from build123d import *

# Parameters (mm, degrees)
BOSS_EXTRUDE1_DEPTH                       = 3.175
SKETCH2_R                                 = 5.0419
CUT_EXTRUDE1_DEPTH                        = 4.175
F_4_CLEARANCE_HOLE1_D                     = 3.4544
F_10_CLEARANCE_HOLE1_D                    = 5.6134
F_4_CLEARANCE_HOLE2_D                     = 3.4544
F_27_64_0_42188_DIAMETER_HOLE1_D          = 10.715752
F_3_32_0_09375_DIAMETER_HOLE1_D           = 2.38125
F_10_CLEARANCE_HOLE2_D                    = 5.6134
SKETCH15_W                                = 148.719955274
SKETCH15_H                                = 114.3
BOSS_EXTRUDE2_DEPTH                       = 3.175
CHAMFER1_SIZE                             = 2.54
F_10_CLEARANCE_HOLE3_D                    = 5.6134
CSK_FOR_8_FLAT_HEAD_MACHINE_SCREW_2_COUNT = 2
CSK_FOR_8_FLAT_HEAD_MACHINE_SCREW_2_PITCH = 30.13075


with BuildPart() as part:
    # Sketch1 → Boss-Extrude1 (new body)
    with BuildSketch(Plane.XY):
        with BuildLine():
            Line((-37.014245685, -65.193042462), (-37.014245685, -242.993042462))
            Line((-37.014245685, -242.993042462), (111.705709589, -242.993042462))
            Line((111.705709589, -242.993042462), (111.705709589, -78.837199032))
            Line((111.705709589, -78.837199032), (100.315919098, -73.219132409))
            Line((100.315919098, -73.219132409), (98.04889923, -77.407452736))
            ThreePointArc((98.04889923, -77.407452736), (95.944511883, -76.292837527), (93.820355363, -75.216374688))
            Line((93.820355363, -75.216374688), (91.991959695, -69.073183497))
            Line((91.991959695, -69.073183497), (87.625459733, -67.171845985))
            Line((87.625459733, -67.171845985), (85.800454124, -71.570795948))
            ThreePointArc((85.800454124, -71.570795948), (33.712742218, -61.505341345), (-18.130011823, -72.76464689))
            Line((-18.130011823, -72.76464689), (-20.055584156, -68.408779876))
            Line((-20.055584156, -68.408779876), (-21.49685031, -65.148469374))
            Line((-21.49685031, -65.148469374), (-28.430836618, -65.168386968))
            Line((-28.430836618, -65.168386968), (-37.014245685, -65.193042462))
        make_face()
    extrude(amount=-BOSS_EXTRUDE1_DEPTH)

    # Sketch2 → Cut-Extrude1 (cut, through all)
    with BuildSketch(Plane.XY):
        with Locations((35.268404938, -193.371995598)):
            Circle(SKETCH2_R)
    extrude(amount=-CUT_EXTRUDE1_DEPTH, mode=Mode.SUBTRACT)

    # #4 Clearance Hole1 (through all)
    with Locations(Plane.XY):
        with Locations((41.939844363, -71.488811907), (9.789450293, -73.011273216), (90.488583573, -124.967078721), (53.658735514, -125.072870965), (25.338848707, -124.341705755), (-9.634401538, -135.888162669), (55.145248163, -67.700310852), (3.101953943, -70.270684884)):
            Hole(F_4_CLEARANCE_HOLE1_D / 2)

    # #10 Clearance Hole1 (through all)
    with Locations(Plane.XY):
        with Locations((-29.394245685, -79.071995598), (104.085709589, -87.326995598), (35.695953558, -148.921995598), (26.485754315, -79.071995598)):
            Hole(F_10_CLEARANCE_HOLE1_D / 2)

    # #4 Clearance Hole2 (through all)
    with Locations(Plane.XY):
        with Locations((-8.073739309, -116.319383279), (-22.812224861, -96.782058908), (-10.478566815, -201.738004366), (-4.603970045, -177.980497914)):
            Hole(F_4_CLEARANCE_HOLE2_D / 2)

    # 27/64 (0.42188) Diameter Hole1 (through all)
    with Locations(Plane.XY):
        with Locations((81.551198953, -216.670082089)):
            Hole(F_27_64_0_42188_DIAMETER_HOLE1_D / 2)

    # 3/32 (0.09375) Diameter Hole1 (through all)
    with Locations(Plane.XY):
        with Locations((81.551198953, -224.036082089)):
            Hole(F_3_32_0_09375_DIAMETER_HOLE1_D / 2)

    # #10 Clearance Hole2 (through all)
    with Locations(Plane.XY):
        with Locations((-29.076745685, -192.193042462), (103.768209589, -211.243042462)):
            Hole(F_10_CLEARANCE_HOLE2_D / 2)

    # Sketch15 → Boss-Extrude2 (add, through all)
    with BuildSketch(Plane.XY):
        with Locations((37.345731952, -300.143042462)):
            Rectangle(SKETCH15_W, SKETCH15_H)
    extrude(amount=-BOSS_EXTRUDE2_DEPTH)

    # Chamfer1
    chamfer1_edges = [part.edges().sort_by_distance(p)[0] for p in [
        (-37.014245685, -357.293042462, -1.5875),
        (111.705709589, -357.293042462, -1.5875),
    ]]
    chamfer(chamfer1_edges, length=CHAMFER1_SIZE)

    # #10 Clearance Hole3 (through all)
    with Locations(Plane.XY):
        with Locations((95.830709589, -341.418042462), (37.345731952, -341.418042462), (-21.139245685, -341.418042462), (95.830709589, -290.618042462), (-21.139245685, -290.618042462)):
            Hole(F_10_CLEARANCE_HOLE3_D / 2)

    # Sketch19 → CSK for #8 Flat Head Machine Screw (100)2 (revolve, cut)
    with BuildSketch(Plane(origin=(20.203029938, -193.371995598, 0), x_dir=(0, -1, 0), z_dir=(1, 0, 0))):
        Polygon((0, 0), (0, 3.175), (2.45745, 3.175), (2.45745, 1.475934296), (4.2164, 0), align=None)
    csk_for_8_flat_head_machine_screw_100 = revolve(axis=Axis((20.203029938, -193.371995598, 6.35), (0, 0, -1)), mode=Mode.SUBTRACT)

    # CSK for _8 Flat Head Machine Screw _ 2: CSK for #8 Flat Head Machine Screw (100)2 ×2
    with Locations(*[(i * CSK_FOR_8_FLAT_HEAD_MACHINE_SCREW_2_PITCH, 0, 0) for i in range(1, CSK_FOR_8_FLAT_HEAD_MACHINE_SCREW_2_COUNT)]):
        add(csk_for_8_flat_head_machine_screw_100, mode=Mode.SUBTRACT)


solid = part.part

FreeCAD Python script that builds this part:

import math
import FreeCAD as App
import Part
import Sketcher
from FreeCAD import Vector
Q = App.Units.Quantity


def edges_at(feature, points):
    """Names of the edges that pass closest to the given points."""
    edges = feature.Shape.Edges
    near = lambda p: min(range(len(edges)), key=lambda i: edges[i].distToShape(Part.Vertex(*p))[0])
    return sorted({f"Edge{near(p) + 1}" for p in points})


def add_polygon(sketch, points):
    """Adds a closed chain of lines whose ends are joined by coincident constraints."""
    first, n = sketch.GeometryCount, len(points)
    for a, b in zip(points, points[1:] + points[:1]):
        sketch.addGeometry(Part.LineSegment(App.Vector(*a, 0), App.Vector(*b, 0)), False)
    for i in range(n):
        sketch.addConstraint(Sketcher.Constraint("Coincident", first + i, 2, first + (i + 1) % n, 1))

doc = App.newDocument("Part")
body = doc.addObject("PartDesign::Body", "Body")

sketch1 = body.newObject("Sketcher::SketchObject", "Sketch")
sketch1.AttachmentSupport = (doc.getObject("XY_Plane"), [""])
sketch1.MapMode = "FlatFace"
sketch1.addGeometry([
    Part.LineSegment(Vector(-37, -65.2, 0), Vector(-37, -243, 0)),
    Part.LineSegment(Vector(-37, -243, 0), Vector(111.7, -243, 0)),
    Part.LineSegment(Vector(111.7, -243, 0), Vector(111.7, -78.8, 0)),
    Part.LineSegment(Vector(111.7, -78.8, 0), Vector(100.3, -73.2, 0)),
    Part.LineSegment(Vector(100.3, -73.2, 0), Vector(98, -77.4, 0)),
    Part.ArcOfCircle(Part.Circle(Vector(35.2, -193.5, 0), Vector(0, 0, 1), 132), math.radians(61.57), math.radians(63.64)),
    Part.LineSegment(Vector(93.8, -75.2, 0), Vector(92, -69.1, 0)),
    Part.LineSegment(Vector(92, -69.1, 0), Vector(87.6, -67.2, 0)),
    Part.LineSegment(Vector(87.6, -67.2, 0), Vector(85.8, -71.6, 0)),
    Part.ArcOfCircle(Part.Circle(Vector(35.2, -193.5, 0), Vector(0, 0, 1), 132), math.radians(67), math.radians(114)),
    Part.LineSegment(Vector(-18.1, -72.8, 0), Vector(-20.1, -68.4, 0)),
    Part.LineSegment(Vector(-20.1, -68.4, 0), Vector(-21.5, -65.1, 0)),
    Part.LineSegment(Vector(-21.5, -65.1, 0), Vector(-28.4, -65.2, 0)),
    Part.LineSegment(Vector(-28.4, -65.2, 0), Vector(-37, -65.2, 0)),
], False)
sketch1.addConstraint([
    Sketcher.Constraint("Coincident", 0, 2, 1, 1),
    Sketcher.Constraint("Coincident", 1, 2, 2, 1),
    Sketcher.Constraint("Coincident", 2, 2, 3, 1),
    Sketcher.Constraint("Coincident", 3, 2, 4, 1),
    Sketcher.Constraint("Coincident", 4, 2, 5, 1),
    Sketcher.Constraint("Coincident", 5, 2, 6, 1),
    Sketcher.Constraint("Coincident", 6, 2, 7, 1),
    Sketcher.Constraint("Coincident", 7, 2, 8, 1),
    Sketcher.Constraint("Coincident", 8, 2, 9, 1),
    Sketcher.Constraint("Coincident", 9, 2, 10, 1),
    Sketcher.Constraint("Coincident", 10, 2, 11, 1),
    Sketcher.Constraint("Coincident", 11, 2, 12, 1),
    Sketcher.Constraint("Coincident", 12, 2, 13, 1),
    Sketcher.Constraint("Coincident", 13, 2, 0, 1),
    Sketcher.Constraint("Vertical", 0),
    Sketcher.Constraint("Horizontal", 1),
    Sketcher.Constraint("Vertical", 2),
    Sketcher.Constraint("Coincident", 9, 3, 5, 3),
    Sketcher.Constraint("Parallel", 10, 11),
    Sketcher.Constraint("Parallel", 12, 13),
    Sketcher.Constraint("Equal", 4, 7),
    Sketcher.Constraint("Equal", 7, 8),
    Sketcher.Constraint("Equal", 8, 10),
    Sketcher.Constraint("DistanceY", 0, 2, 0, 1, Q("7 in")),
    Sketcher.Constraint("Distance", 3, Q("0.5 in")),
    Sketcher.Constraint("Distance", 4, Q("0.1875 in")),
    Sketcher.Constraint("Radius", 5, 131.971355),
    Sketcher.Constraint("Radius", 9, 131.971353),
    Sketcher.Constraint("DistanceX", -1, 1, 5, 3, 35.228598),
    Sketcher.Constraint("DistanceY", 2, 2, -1, 1, 78.837199),
    Sketcher.Constraint("DistanceX", -1, 1, 4, 2, 98.048899),
    Sketcher.Constraint("DistanceX", 7, 2, 6, 2, 4.3665),
    Sketcher.Constraint("DistanceX", 8, 2, 5, 2, 8.019901),
    Sketcher.Constraint("DistanceY", 9, 2, 7, 2, 5.592801),
    Sketcher.Constraint("DistanceX", 13, 2, 8, 2, 122.8147),
    Sketcher.Constraint("Distance", 6, 6.409511),
    Sketcher.Constraint("Distance", 11, 3.56467),
    Sketcher.Constraint("DistanceX", 1, 1, 1, 2, 148.719955),
    Sketcher.Constraint("DistanceY", 2, 1, 2, 2, 164.155843),
    Sketcher.Constraint("DistanceY", 5, 3, -1, 1, 193.46799),
    Sketcher.Constraint("DistanceX", -1, 1, 1, 2, 111.70571),
    Sketcher.Constraint("DistanceY", 10, 2, -1, 1, 68.40878),
    Sketcher.Constraint("DistanceX", 12, 2, 8, 2, 114.231291),
])
pad1 = body.newObject("PartDesign::Pad", "Pad")
pad1.Profile = sketch1
pad1.Length = Q("0.125 in")
pad1.Reversed = True

sketch2 = body.newObject("Sketcher::SketchObject", "Sketch001")
sketch2.AttachmentSupport = (doc.getObject("XY_Plane"), [""])
sketch2.MapMode = "FlatFace"
sketch2.addGeometry(Part.Circle(Vector(35, -193, 0), Vector(0, 0, 1), 5), False)
sketch2.addConstraint([
    Sketcher.Constraint("Diameter", 0, Q("0.397 in")),
    Sketcher.Constraint("DistanceX", -1, 1, 0, 3, 35.268405),
    Sketcher.Constraint("DistanceY", 0, 3, -1, 1, 193.371996),
])
pocket1 = body.newObject("PartDesign::Pocket", "Pocket")
pocket1.Profile = sketch2
pocket1.Type = "ThroughAll"

sketch3 = body.newObject("Sketcher::SketchObject", "Sketch002")
sketch3.AttachmentSupport = (doc.getObject("XY_Plane"), [""])
sketch3.MapMode = "FlatFace"
sketch3.addGeometry([
    Part.Circle(Vector(41.9, -71.5, 0), Vector(0, 0, 1), 1.7),
    Part.Circle(Vector(9.8, -73, 0), Vector(0, 0, 1), 1.7),
    Part.Circle(Vector(90.5, -125, 0), Vector(0, 0, 1), 1.7),
    Part.Circle(Vector(53.7, -125.1, 0), Vector(0, 0, 1), 1.7),
    Part.Circle(Vector(25.3, -124.3, 0), Vector(0, 0, 1), 1.7),
    Part.Circle(Vector(-9.6, -135.9, 0), Vector(0, 0, 1), 1.7),
    Part.Circle(Vector(55.1, -67.7, 0), Vector(0, 0, 1), 1.7),
    Part.Circle(Vector(3.1, -70.3, 0), Vector(0, 0, 1), 1.7),
], False)
sketch3.addConstraint([
    Sketcher.Constraint("Equal", 0, 1),
    Sketcher.Constraint("Equal", 1, 2),
    Sketcher.Constraint("Equal", 2, 3),
    Sketcher.Constraint("Equal", 3, 4),
    Sketcher.Constraint("Equal", 4, 5),
    Sketcher.Constraint("Equal", 5, 6),
    Sketcher.Constraint("Equal", 6, 7),
    Sketcher.Constraint("Diameter", 0, Q("0.136 in")),
    Sketcher.Constraint("DistanceX", 5, 3, -1, 1, 9.634402),
    Sketcher.Constraint("DistanceX", 1, 3, 4, 3, 15.549398),
    Sketcher.Constraint("DistanceY", 0, 3, 6, 3, 3.788501),
    Sketcher.Constraint("DistanceX", 4, 3, 6, 3, 29.806399),
    Sketcher.Constraint("DistanceY", 0, 3, -1, 1, 71.488812),
    Sketcher.Constraint("DistanceX", -1, 1, 1, 3, 9.78945),
    Sketcher.Constraint("DistanceY", 2, 3, -1, 1, 124.967079),
    Sketcher.Constraint("DistanceY", 3, 3, -1, 1, 125.072871),
    Sketcher.Constraint("DistanceY", 1, 3, 0, 3, 1.522461),
    Sketcher.Constraint("DistanceX", 0, 3, 2, 3, 48.548739),
    Sketcher.Constraint("DistanceX", 3, 3, 2, 3, 36.829848),
    Sketcher.Constraint("DistanceY", 5, 3, 3, 3, 10.815292),
    Sketcher.Constraint("DistanceY", 1, 3, 7, 3, 2.740588),
    Sketcher.Constraint("DistanceX", 7, 3, 0, 3, 38.83789),
    Sketcher.Constraint("DistanceY", 4, 3, 7, 3, 54.071021),
    Sketcher.Constraint("DistanceX", -1, 1, 0, 3, 41.939844),
])
doc.recompute()
hole = body.newObject("PartDesign::Hole", "Hole")
hole.Profile = sketch3
hole.ThreadType = "None"
hole.Diameter = Q("0.136 in")
hole.DepthType = "ThroughAll"

sketch4 = body.newObject("Sketcher::SketchObject", "Sketch003")
sketch4.AttachmentSupport = (doc.getObject("XY_Plane"), [""])
sketch4.MapMode = "FlatFace"
sketch4.addGeometry([
    Part.Circle(Vector(-29.4, -79.1, 0), Vector(0, 0, 1), 2.8),
    Part.Circle(Vector(104.1, -87.3, 0), Vector(0, 0, 1), 2.8),
    Part.Circle(Vector(35.7, -148.9, 0), Vector(0, 0, 1), 2.8),
    Part.Circle(Vector(26.5, -79.1, 0), Vector(0, 0, 1), 2.8),
], False)
sketch4.addConstraint([
    Sketcher.Constraint("Equal", 0, 1),
    Sketcher.Constraint("Equal", 1, 2),
    Sketcher.Constraint("Equal", 2, 3),
    Sketcher.Constraint("Horizontal", 0, 3, 3, 3),
    Sketcher.Constraint("Diameter", 0, Q("0.221 in")),
    Sketcher.Constraint("DistanceX", 0, 3, 3, 3, Q("2.2 in")),
    Sketcher.Constraint("DistanceY", 2, 3, 0, 3, Q("2.75 in")),
    Sketcher.Constraint("DistanceY", 1, 3, 0, 3, Q("0.325 in")),
    Sketcher.Constraint("DistanceX", 0, 3, 2, 3, 65.090199),
    Sketcher.Constraint("DistanceX", -1, 1, 1, 3, 104.08571),
    Sketcher.Constraint("DistanceX", 0, 3, -1, 1, 29.394246),
    Sketcher.Constraint("DistanceY", 0, 3, -1, 1, 79.071996),
])
doc.recompute()
hole2 = body.newObject("PartDesign::Hole", "Hole001")
hole2.Profile = sketch4
hole2.ThreadType = "None"
hole2.Diameter = Q("0.221 in")
hole2.DepthType = "ThroughAll"

sketch5 = body.newObject("Sketcher::SketchObject", "Sketch004")
sketch5.AttachmentSupport = (doc.getObject("XY_Plane"), [""])
sketch5.MapMode = "FlatFace"
sketch5.addGeometry([
    Part.Circle(Vector(-8.1, -116.3, 0), Vector(0, 0, 1), 1.7),
    Part.Circle(Vector(-22.8, -96.8, 0), Vector(0, 0, 1), 1.7),
    Part.Circle(Vector(-10.5, -201.7, 0), Vector(0, 0, 1), 1.7),
    Part.Circle(Vector(-4.6, -178, 0), Vector(0, 0, 1), 1.7),
], False)
sketch5.addConstraint([
    Sketcher.Constraint("Equal", 0, 1),
    Sketcher.Constraint("Equal", 1, 2),
    Sketcher.Constraint("Equal", 2, 3),
    Sketcher.Constraint("Diameter", 0, Q("0.136 in")),
    Sketcher.Constraint("DistanceX", 0, 3, -1, 1, 8.073739),
    Sketcher.Constraint("DistanceY", 1, 3, -1, 1, 96.782059),
    Sketcher.Constraint("DistanceX", 3, 3, -1, 1, 4.60397),
    Sketcher.Constraint("DistanceY", 2, 3, 0, 3, 85.418621),
    Sketcher.Constraint("DistanceX", 1, 3, 2, 3, 12.333658),
    Sketcher.Constraint("DistanceY", 3, 3, 1, 3, 81.198439),
    Sketcher.Constraint("DistanceY", 0, 3, -1, 1, 116.319383),
    Sketcher.Constraint("DistanceX", 1, 3, -1, 1, 22.812225),
])
doc.recompute()
hole3 = body.newObject("PartDesign::Hole", "Hole002")
hole3.Profile = sketch5
hole3.ThreadType = "None"
hole3.Diameter = Q("0.136 in")
hole3.DepthType = "ThroughAll"

sketch6 = body.newObject("Sketcher::SketchObject", "Sketch005")
sketch6.AttachmentSupport = (doc.getObject("XY_Plane"), [""])
sketch6.MapMode = "FlatFace"
sketch6.addGeometry(Part.Circle(Vector(82, -217, 0), Vector(0, 0, 1), 5), False)
sketch6.addConstraint([
    Sketcher.Constraint("Diameter", 0, 10.715752),
    Sketcher.Constraint("DistanceX", -1, 1, 0, 3, 81.551199),
    Sketcher.Constraint("DistanceY", 0, 3, -1, 1, 216.670082),
])
doc.recompute()
hole4 = body.newObject("PartDesign::Hole", "Hole003")
hole4.Profile = sketch6
hole4.ThreadType = "None"
hole4.Diameter = 10.715752
hole4.DepthType = "ThroughAll"

sketch7 = body.newObject("Sketcher::SketchObject", "Sketch006")
sketch7.AttachmentSupport = (doc.getObject("XY_Plane"), [""])
sketch7.MapMode = "FlatFace"
sketch7.addGeometry(Part.Circle(Vector(81.6, -224, 0), Vector(0, 0, 1), 1.2), False)
sketch7.addConstraint([
    Sketcher.Constraint("Diameter", 0, Q("0.09375 in")),
    Sketcher.Constraint("DistanceX", -1, 1, 0, 3, 81.551199),
    Sketcher.Constraint("DistanceY", 0, 3, -1, 1, 224.036082),
])
doc.recompute()
hole5 = body.newObject("PartDesign::Hole", "Hole004")
hole5.Profile = sketch7
hole5.ThreadType = "None"
hole5.Diameter = Q("0.09375 in")
hole5.DepthType = "ThroughAll"

sketch8 = body.newObject("Sketcher::SketchObject", "Sketch007")
sketch8.AttachmentSupport = (doc.getObject("XY_Plane"), [""])
sketch8.MapMode = "FlatFace"
sketch8.addGeometry([
    Part.Circle(Vector(-29.1, -192.2, 0), Vector(0, 0, 1), 2.8),
    Part.Circle(Vector(103.8, -211.2, 0), Vector(0, 0, 1), 2.8),
], False)
sketch8.addConstraint([
    Sketcher.Constraint("Equal", 0, 1),
    Sketcher.Constraint("Diameter", 0, Q("0.221 in")),
    Sketcher.Constraint("DistanceY", 1, 3, 0, 3, Q("0.75 in")),
    Sketcher.Constraint("DistanceX", -1, 1, 1, 3, 103.76821),
    Sketcher.Constraint("DistanceX", 0, 3, -1, 1, 29.076746),
    Sketcher.Constraint("DistanceY", 0, 3, -1, 1, 192.193042),
])
doc.recompute()
hole6 = body.newObject("PartDesign::Hole", "Hole005")
hole6.Profile = sketch8
hole6.ThreadType = "None"
hole6.Diameter = Q("0.221 in")
hole6.DepthType = "ThroughAll"

sketch9 = body.newObject("Sketcher::SketchObject", "Sketch008")
sketch9.AttachmentSupport = (doc.getObject("XY_Plane"), [""])
sketch9.MapMode = "FlatFace"
add_polygon(sketch9, [(-37, -243), (-37, -357), (112, -357), (112, -243)])
sketch9.addConstraint([
    Sketcher.Constraint("Vertical", 0),
    Sketcher.Constraint("Horizontal", 1),
    Sketcher.Constraint("Vertical", 2),
    Sketcher.Constraint("Horizontal", 3),
    Sketcher.Constraint("DistanceY", 0, 2, 0, 1, Q("4.5 in")),
    Sketcher.Constraint("DistanceX", 1, 1, 1, 2, 148.719955),
    Sketcher.Constraint("DistanceX", -1, 1, 1, 2, 111.70571),
    Sketcher.Constraint("DistanceY", 0, 2, -1, 1, 357.293042),
])
pad2 = body.newObject("PartDesign::Pad", "Pad001")
pad2.Profile = sketch9
pad2.Length = Q("0.125 in")
pad2.Reversed = True
doc.recompute()

chamfer = body.newObject("PartDesign::Chamfer", "Chamfer")
chamfer.Base = (pad2, edges_at(pad2, [(-37.014, -357.293, -1.587), (111.706, -357.293, -1.587)]))
chamfer.Size = Q("0.1 in")

sketch10 = body.newObject("Sketcher::SketchObject", "Sketch009")
sketch10.AttachmentSupport = (doc.getObject("XY_Plane"), [""])
sketch10.MapMode = "FlatFace"
sketch10.addGeometry([
    Part.Circle(Vector(95.8, -341.4, 0), Vector(0, 0, 1), 2.8),
    Part.Circle(Vector(37.3, -341.4, 0), Vector(0, 0, 1), 2.8),
    Part.Circle(Vector(-21.1, -341.4, 0), Vector(0, 0, 1), 2.8),
    Part.Circle(Vector(95.8, -290.6, 0), Vector(0, 0, 1), 2.8),
    Part.Circle(Vector(-21.1, -290.6, 0), Vector(0, 0, 1), 2.8),
], False)
sketch10.addConstraint([
    Sketcher.Constraint("Equal", 0, 1),
    Sketcher.Constraint("Equal", 1, 2),
    Sketcher.Constraint("Equal", 2, 3),
    Sketcher.Constraint("Equal", 3, 4),
    Sketcher.Constraint("Horizontal", 0, 3, 1, 3),
    Sketcher.Constraint("Horizontal", 1, 3, 2, 3),
    Sketcher.Constraint("Horizontal", 3, 3, 4, 3),
    Sketcher.Constraint("Vertical", 0, 3, 3, 3),
    Sketcher.Constraint("Vertical", 2, 3, 4, 3),
    Sketcher.Constraint("Diameter", 0, Q("0.221 in")),
    Sketcher.Constraint("DistanceY", 0, 3, 3, 3, Q("2 in")),
    Sketcher.Constraint("DistanceX", -1, 1, 0, 3, 95.83071),
    Sketcher.Constraint("DistanceX", -1, 1, 1, 3, 37.345732),
    Sketcher.Constraint("DistanceY", 0, 3, -1, 1, 341.418042),
    Sketcher.Constraint("DistanceX", 2, 3, -1, 1, 21.139246),
])
doc.recompute()
hole7 = body.newObject("PartDesign::Hole", "Hole006")
hole7.Profile = sketch10
hole7.ThreadType = "None"
hole7.Diameter = Q("0.221 in")
hole7.DepthType = "ThroughAll"

sketch11 = body.newObject("Sketcher::SketchObject", "Sketch010")
sketch11.AttachmentSupport = (doc.getObject("YZ_Plane"), [""])
sketch11.MapMode = "FlatFace"
sketch11.AttachmentOffset = App.Placement(Vector(0, 0, 20.20303), App.Rotation())
add_polygon(sketch11, [(-193.4, -3.2), (-193.4, 0), (-197.6, 0), (-195.8, -1.5), (-195.8, -3.2)])
sketch11.addGeometry(Part.LineSegment(Vector(-193.4, 0, 0), Vector(-193.4, -3.2, 0)), True)
sketch11.addConstraint([
    Sketcher.Constraint("Vertical", 0),
    Sketcher.Constraint("Horizontal", 1),
    Sketcher.Constraint("Vertical", 3),
    Sketcher.Constraint("Horizontal", 4),
    Sketcher.Constraint("Vertical", 5),
    Sketcher.Constraint("Coincident", 5, 1, 0, 2),
    Sketcher.Constraint("PointOnObject", 0, 2, -1),
    Sketcher.Constraint("Horizontal", 3, 2, 5, 2),
    Sketcher.Constraint("Angle", 2, Q("-40 deg")),
    Sketcher.Constraint("DistanceX", 1, 2, 1, 1, Q("0.166 in")),
    Sketcher.Constraint("DistanceY", 0, 1, 0, 2, Q("0.125 in")),
    Sketcher.Constraint("DistanceX", 4, 1, 4, 2, 2.45745),
    Sketcher.Constraint("DistanceX", 0, 2, -1, 1, 193.371996),
])
groove = body.newObject("PartDesign::Groove", "Groove")
groove.Profile = sketch11
groove.ReferenceAxis = (sketch11, ["Axis0"])
groove.Angle = 360
doc.recompute()

linearpattern = body.newObject("PartDesign::LinearPattern", "LinearPattern")
linearpattern.Originals = [groove]
linearpattern.Direction = (doc.getObject("X_Axis"), [""])
linearpattern.Mode = "offset"
linearpattern.Offset = 30.13075
linearpattern.Occurrences = 2
body.Tip = linearpattern

doc.recompute()
